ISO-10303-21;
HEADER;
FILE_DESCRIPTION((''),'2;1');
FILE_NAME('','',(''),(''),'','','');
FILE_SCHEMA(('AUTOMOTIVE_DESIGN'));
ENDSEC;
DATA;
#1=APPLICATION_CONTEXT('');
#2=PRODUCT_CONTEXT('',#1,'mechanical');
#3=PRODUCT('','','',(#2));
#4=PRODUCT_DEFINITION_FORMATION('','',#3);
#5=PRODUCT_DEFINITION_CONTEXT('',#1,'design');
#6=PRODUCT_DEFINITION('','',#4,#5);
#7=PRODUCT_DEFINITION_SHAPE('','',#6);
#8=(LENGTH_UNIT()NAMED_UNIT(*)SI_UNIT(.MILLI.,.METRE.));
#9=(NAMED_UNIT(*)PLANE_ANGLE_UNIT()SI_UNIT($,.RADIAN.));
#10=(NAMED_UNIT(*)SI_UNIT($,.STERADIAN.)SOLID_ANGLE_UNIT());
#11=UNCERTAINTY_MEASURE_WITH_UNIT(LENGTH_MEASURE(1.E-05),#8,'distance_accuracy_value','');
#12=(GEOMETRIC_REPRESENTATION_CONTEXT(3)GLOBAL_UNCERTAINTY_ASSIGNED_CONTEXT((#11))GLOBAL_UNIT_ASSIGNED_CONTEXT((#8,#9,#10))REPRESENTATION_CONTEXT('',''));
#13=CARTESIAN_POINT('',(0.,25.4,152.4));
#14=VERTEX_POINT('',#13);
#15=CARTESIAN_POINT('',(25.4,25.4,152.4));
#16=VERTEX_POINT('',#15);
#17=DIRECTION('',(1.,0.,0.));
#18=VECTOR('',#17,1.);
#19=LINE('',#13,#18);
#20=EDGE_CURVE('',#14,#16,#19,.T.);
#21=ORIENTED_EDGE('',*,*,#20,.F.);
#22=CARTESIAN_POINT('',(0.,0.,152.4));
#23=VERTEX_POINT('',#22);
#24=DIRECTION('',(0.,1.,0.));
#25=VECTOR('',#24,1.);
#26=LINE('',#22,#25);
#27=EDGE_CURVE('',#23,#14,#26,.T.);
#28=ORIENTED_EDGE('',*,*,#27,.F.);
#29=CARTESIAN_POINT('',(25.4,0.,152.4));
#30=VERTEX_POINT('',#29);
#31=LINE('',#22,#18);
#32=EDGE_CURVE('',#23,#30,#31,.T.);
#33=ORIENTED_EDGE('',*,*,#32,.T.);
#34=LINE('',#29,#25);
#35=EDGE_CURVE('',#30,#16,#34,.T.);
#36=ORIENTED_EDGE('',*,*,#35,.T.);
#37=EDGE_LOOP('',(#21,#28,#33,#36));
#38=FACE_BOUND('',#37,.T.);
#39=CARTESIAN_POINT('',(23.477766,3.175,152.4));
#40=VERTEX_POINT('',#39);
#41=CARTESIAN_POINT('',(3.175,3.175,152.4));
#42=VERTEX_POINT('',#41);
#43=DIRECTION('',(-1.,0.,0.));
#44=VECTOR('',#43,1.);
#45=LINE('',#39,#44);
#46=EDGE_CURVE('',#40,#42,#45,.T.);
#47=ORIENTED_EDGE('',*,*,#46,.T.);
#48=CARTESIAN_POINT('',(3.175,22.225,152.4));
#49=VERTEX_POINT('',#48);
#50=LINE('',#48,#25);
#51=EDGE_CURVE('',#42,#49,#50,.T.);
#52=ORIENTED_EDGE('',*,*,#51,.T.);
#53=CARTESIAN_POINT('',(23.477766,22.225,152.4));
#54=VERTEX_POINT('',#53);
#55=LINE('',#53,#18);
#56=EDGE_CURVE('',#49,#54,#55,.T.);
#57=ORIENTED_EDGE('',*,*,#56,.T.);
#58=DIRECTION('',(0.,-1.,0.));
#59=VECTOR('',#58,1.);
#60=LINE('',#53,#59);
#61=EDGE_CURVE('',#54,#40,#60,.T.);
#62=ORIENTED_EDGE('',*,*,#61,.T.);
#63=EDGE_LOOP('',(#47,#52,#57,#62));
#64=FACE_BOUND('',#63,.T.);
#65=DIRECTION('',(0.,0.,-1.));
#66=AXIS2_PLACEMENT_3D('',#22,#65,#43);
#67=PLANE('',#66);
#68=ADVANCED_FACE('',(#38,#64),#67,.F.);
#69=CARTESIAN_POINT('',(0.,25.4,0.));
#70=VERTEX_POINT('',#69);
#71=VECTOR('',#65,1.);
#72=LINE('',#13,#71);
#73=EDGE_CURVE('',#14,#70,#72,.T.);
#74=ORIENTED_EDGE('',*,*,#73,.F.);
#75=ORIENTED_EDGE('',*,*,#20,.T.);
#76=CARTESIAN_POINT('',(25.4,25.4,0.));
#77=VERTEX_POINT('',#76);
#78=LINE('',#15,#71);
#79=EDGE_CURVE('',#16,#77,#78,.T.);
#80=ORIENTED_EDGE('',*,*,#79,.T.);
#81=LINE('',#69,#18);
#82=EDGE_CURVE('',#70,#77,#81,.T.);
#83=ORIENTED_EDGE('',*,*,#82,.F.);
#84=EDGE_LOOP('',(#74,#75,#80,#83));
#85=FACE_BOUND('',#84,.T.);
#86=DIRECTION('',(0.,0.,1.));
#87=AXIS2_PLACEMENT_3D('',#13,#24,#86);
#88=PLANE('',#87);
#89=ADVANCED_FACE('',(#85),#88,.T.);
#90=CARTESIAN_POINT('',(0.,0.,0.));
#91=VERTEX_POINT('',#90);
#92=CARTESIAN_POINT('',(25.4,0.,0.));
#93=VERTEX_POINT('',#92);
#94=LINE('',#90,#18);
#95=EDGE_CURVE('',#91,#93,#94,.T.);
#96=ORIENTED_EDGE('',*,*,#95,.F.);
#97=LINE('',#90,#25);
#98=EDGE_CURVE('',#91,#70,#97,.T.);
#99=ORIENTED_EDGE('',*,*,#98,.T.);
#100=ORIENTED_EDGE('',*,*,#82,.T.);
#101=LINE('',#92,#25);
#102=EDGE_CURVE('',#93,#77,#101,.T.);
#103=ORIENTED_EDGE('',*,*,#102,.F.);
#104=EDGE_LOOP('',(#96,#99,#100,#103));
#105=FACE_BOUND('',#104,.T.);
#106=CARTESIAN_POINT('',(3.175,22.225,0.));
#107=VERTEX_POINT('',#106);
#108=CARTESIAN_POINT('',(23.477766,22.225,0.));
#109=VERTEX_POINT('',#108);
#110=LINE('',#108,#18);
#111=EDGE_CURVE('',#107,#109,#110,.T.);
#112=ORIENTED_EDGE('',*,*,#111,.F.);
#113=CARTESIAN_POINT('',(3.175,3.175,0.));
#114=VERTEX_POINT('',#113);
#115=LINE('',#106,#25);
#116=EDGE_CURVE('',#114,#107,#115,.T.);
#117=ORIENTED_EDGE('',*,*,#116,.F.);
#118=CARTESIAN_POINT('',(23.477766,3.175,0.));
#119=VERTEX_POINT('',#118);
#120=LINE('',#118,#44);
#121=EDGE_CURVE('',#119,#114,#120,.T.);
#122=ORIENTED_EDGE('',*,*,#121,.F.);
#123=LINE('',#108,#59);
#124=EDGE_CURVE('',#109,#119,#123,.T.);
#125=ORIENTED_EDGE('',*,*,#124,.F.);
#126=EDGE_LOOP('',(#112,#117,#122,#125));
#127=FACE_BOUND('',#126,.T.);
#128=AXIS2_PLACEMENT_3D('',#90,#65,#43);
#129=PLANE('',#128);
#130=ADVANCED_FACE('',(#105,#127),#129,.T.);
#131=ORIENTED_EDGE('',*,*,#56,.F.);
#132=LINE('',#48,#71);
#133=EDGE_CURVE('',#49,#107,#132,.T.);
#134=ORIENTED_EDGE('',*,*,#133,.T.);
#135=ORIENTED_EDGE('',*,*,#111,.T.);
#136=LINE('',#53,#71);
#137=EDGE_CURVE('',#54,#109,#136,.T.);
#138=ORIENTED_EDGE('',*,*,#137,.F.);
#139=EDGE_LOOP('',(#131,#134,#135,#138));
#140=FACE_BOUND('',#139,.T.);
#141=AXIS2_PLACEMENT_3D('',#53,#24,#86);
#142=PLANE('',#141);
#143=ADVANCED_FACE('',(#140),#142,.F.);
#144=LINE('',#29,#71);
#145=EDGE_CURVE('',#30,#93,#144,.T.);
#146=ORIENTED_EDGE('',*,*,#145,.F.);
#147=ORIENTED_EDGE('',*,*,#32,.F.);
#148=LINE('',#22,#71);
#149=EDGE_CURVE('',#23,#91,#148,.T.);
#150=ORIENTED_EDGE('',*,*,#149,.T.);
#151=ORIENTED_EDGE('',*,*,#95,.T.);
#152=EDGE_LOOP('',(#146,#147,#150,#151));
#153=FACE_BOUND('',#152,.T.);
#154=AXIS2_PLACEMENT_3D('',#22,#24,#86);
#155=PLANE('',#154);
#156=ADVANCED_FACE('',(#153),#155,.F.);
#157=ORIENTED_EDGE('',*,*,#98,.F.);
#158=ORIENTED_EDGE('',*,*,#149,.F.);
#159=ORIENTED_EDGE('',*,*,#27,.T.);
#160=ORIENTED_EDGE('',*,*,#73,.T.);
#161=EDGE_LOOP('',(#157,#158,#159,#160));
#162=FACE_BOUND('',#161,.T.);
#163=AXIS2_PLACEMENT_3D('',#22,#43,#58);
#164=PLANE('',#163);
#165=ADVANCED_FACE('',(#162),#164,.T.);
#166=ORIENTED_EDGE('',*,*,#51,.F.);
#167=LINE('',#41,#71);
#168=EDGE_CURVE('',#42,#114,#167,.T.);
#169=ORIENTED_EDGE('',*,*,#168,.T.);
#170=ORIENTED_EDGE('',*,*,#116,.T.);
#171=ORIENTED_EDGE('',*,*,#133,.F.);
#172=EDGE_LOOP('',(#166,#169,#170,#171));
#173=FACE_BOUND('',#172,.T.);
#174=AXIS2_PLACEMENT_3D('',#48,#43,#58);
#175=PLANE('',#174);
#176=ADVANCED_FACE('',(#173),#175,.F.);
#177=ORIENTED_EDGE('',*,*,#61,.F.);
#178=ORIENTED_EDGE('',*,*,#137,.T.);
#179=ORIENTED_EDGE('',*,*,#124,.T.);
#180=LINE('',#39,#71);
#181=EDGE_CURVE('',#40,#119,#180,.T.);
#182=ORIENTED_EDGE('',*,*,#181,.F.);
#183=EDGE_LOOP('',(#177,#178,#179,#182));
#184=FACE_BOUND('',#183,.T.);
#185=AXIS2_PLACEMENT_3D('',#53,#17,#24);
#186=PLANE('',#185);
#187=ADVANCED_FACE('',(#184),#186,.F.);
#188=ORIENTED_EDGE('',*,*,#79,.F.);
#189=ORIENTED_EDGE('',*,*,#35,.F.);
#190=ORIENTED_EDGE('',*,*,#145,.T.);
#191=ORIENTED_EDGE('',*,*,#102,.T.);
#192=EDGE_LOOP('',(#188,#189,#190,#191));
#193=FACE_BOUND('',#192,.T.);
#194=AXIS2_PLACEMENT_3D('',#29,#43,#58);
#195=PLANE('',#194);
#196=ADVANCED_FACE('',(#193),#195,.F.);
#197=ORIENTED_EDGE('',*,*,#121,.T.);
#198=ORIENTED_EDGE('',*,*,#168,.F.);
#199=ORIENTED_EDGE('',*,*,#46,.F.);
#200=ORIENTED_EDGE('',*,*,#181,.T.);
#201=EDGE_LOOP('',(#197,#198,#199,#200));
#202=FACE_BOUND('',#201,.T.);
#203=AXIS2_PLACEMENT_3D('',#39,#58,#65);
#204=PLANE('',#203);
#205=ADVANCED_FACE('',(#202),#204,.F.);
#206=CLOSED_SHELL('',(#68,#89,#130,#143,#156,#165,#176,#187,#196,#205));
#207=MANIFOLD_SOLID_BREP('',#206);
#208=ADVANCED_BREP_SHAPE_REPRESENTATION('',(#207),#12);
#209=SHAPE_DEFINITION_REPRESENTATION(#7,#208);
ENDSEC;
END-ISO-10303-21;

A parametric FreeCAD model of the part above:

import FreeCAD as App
import Part
import Sketcher
from FreeCAD import Vector
Q = App.Units.Quantity

doc = App.newDocument("Part")
body = doc.addObject("PartDesign::Body", "Body")

sketch1 = body.newObject("Sketcher::SketchObject", "Sketch")
sketch1.AttachmentSupport = (doc.getObject("XY_Plane"), [""])
sketch1.MapMode = "FlatFace"
sketch1.addGeometry(Part.LineSegment(Vector(0, 25, 0), Vector(0, 0, 0)), False)
sketch1.addGeometry(Part.LineSegment(Vector(0, 0, 0), Vector(25, 0, 0)), False)
sketch1.addGeometry(Part.LineSegment(Vector(25, 0, 0), Vector(25, 25, 0)), False)
sketch1.addGeometry(Part.LineSegment(Vector(25, 25, 0), Vector(0, 25, 0)), False)
sketch1.addConstraint(Sketcher.Constraint("Coincident", 0, 2, 1, 1))
sketch1.addConstraint(Sketcher.Constraint("Coincident", 1, 2, 2, 1))
sketch1.addConstraint(Sketcher.Constraint("Coincident", 2, 2, 3, 1))
sketch1.addConstraint(Sketcher.Constraint("Coincident", 3, 2, 0, 1))
sketch1.addConstraint(Sketcher.Constraint("Vertical", 0))
sketch1.addConstraint(Sketcher.Constraint("Horizontal", 1))
sketch1.addConstraint(Sketcher.Constraint("Vertical", 2))
sketch1.addConstraint(Sketcher.Constraint("Horizontal", 3))
sketch1.addConstraint(Sketcher.Constraint("Coincident", 0, 2, -1, 1))
sketch1.addConstraint(Sketcher.Constraint("Equal", 3, 0))
sketch1.addConstraint(Sketcher.Constraint("DistanceX", 1, 1, 1, 2, Q("1 in")))
pad1 = body.newObject("PartDesign::Pad", "Pad")
pad1.Profile = sketch1
pad1.Length = Q("6 in")

sketch2 = body.newObject("Sketcher::SketchObject", "Sketch001")
sketch2.AttachmentSupport = (doc.getObject("XY_Plane"), [""])
sketch2.MapMode = "FlatFace"
sketch2.addGeometry(Part.LineSegment(Vector(23, 22, 0), Vector(23, 3, 0)), False)
sketch2.addGeometry(Part.LineSegment(Vector(23, 3, 0), Vector(3, 3, 0)), False)
sketch2.addGeometry(Part.LineSegment(Vector(3, 3, 0), Vector(3, 22, 0)), False)
sketch2.addGeometry(Part.LineSegment(Vector(3, 22, 0), Vector(23, 22, 0)), False)
sketch2.addConstraint(Sketcher.Constraint("Coincident", 0, 2, 1, 1))
sketch2.addConstraint(Sketcher.Constraint("Coincident", 1, 2, 2, 1))
sketch2.addConstraint(Sketcher.Constraint("Coincident", 2, 2, 3, 1))
sketch2.addConstraint(Sketcher.Constraint("Coincident", 3, 2, 0, 1))
sketch2.addConstraint(Sketcher.Constraint("Vertical", 0))
sketch2.addConstraint(Sketcher.Constraint("Horizontal", 1))
sketch2.addConstraint(Sketcher.Constraint("Vertical", 2))
sketch2.addConstraint(Sketcher.Constraint("Horizontal", 3))
sketch2.addConstraint(Sketcher.Constraint("DistanceY", 0, 2, 0, 1, Q("0.75 in")))
sketch2.addConstraint(Sketcher.Constraint("DistanceY", -1, 1, 0, 2, Q("0.125 in")))
sketch2.addConstraint(Sketcher.Constraint("DistanceX", -1, 1, 1, 2, Q("0.125 in")))
sketch2.addConstraint(Sketcher.Constraint("DistanceX", 1, 2, 1, 1, 20.302766))
pocket1 = body.newObject("PartDesign::Pocket", "Pocket")
pocket1.Profile = sketch2
pocket1.Type = "ThroughAll"
pocket1.Reversed = True

doc.recompute()
